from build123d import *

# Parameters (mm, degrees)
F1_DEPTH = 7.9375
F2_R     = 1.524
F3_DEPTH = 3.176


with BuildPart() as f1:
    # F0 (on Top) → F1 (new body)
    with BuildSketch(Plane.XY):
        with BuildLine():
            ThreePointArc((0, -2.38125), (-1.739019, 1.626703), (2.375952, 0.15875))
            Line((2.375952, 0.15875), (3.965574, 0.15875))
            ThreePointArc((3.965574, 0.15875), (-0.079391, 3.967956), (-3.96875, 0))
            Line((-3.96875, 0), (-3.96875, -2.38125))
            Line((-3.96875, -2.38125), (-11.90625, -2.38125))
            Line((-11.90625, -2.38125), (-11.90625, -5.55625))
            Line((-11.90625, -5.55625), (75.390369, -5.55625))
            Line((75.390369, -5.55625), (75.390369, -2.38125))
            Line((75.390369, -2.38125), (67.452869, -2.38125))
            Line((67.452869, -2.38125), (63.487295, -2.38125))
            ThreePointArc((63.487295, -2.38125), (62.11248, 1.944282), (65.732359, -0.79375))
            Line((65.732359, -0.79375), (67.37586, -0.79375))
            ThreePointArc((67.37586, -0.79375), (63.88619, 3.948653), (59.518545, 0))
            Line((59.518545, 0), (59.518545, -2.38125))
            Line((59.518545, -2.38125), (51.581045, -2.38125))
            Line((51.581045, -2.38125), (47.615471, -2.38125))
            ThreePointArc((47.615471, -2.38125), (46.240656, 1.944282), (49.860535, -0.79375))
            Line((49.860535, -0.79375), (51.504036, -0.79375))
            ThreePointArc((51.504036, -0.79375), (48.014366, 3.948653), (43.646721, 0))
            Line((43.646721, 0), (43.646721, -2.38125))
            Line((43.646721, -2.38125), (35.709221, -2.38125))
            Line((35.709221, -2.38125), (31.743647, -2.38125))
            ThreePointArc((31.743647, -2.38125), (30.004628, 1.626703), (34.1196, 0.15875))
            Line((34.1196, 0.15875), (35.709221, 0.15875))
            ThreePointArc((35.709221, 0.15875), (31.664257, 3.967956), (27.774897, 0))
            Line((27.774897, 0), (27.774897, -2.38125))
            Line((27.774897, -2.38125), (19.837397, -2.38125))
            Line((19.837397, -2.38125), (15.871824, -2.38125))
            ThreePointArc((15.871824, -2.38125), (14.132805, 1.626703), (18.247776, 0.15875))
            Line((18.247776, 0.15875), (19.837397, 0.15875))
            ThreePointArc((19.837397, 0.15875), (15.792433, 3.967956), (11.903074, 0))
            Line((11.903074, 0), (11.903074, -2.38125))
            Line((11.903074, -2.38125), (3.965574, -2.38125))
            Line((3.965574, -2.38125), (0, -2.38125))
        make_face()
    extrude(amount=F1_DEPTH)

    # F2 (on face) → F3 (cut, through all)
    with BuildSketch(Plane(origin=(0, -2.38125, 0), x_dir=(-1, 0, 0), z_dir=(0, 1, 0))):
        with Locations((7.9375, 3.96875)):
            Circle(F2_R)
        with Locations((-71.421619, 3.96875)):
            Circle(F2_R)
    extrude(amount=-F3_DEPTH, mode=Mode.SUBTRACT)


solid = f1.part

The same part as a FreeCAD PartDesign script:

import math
import FreeCAD as App
import Part
import Sketcher
Q = App.Units.Quantity

doc = App.newDocument("Part")
params = doc.addObject("Spreadsheet::Sheet", "Params")
for row, (alias, value) in enumerate([
    ("sketch1_radius", "0.09375 in"),
    ("sketch1_radius2", "0.15625 in"),
    ("sketch1_width", "0.3125 in"),
    ("sketch1_height", "0.125 in"),
    ("pad1_length", "0.3125 in"),
    ("sketch2_diameter", "0.12 in"),
], start=1):
    params.set(f"A{row}", alias)
    params.set(f"B{row}", "=" + value)
    params.setAlias(f"B{row}", alias)

body = doc.addObject("PartDesign::Body", "Body")

sketch1 = body.newObject("Sketcher::SketchObject", "Sketch")
sketch1.AttachmentSupport = (doc.getObject("XY_Plane"), [""])
sketch1.MapMode = "FlatFace"
sketch1.addGeometry([
    Part.ArcOfCircle(Part.Circle(App.Vector(0, 0, 0), App.Vector(0, 0, 1), 2.38125), math.radians(3.822561), math.radians(270.000003)),
    Part.LineSegment(App.Vector(2.375952, 0.15875, 0), App.Vector(3.965574, 0.15875, 0)),
    Part.ArcOfCircle(Part.Circle(App.Vector(0, 0, 0), App.Vector(0, 0, 1), 3.96875), math.radians(2.292442), math.radians(180)),
    Part.LineSegment(App.Vector(-3.96875, 0, 0), App.Vector(-3.96875, -2.38125, 0)),
    Part.LineSegment(App.Vector(-3.96875, -2.38125, 0), App.Vector(-11.90625, -2.38125, 0)),
    Part.LineSegment(App.Vector(-11.90625, -2.38125, 0), App.Vector(-11.90625, -5.55625, 0)),
    Part.LineSegment(App.Vector(-11.90625, -5.55625, 0), App.Vector(75.390369, -5.55625, 0)),
    Part.LineSegment(App.Vector(75.390369, -5.55625, 0), App.Vector(75.390369, -2.38125, 0)),
    Part.LineSegment(App.Vector(75.390369, -2.38125, 0), App.Vector(63.487295, -2.38125, 0)),
    Part.ArcOfCircle(Part.Circle(App.Vector(63.487295, 0, 0), App.Vector(0, 0, 1), 2.38125), math.radians(-19.471216), math.radians(269.999996)),
    Part.LineSegment(App.Vector(65.732359, -0.79375, 0), App.Vector(67.37586, -0.79375, 0)),
    Part.ArcOfCircle(Part.Circle(App.Vector(63.487295, 0, 0), App.Vector(0, 0, 1), 3.96875), math.radians(-11.536961), math.radians(180.000002)),
    Part.LineSegment(App.Vector(59.518545, 0, 0), App.Vector(59.518545, -2.38125, 0)),
    Part.LineSegment(App.Vector(59.518545, -2.38125, 0), App.Vector(47.615471, -2.38125, 0)),
    Part.ArcOfCircle(Part.Circle(App.Vector(47.615471, 0, 0), App.Vector(0, 0, 1), 2.38125), math.radians(-19.471216), math.radians(269.999996)),
    Part.LineSegment(App.Vector(49.860535, -0.79375, 0), App.Vector(51.504036, -0.79375, 0)),
    Part.ArcOfCircle(Part.Circle(App.Vector(47.615471, 0, 0), App.Vector(0, 0, 1), 3.96875), math.radians(-11.536961), math.radians(180.000002)),
    Part.LineSegment(App.Vector(43.646721, 0, 0), App.Vector(43.646721, -2.38125, 0)),
    Part.LineSegment(App.Vector(43.646721, -2.38125, 0), App.Vector(31.743647, -2.38125, 0)),
    Part.ArcOfCircle(Part.Circle(App.Vector(31.743648, 0, 0), App.Vector(0, 0, 1), 2.38125), math.radians(3.822553), math.radians(269.999987)),
    Part.LineSegment(App.Vector(34.1196, 0.15875, 0), App.Vector(35.709221, 0.15875, 0)),
    Part.ArcOfCircle(Part.Circle(App.Vector(31.743647, 0, 0), App.Vector(0, 0, 1), 3.96875), math.radians(2.292443), math.radians(180)),
    Part.LineSegment(App.Vector(27.774897, 0, 0), App.Vector(27.774897, -2.38125, 0)),
    Part.LineSegment(App.Vector(27.774897, -2.38125, 0), App.Vector(15.871824, -2.38125, 0)),
    Part.ArcOfCircle(Part.Circle(App.Vector(15.871824, 0, 0), App.Vector(0, 0, 1), 2.38125), math.radians(3.822561), math.radians(270.000003)),
    Part.LineSegment(App.Vector(18.247776, 0.15875, 0), App.Vector(19.837397, 0.15875, 0)),
    Part.ArcOfCircle(Part.Circle(App.Vector(15.871824, 0.000001, 0), App.Vector(0, 0, 1), 3.96875), math.radians(2.292436), math.radians(180.000007)),
    Part.LineSegment(App.Vector(11.903074, 0, 0), App.Vector(11.903074, -2.38125, 0)),
    Part.LineSegment(App.Vector(11.903074, -2.38125, 0), App.Vector(0, -2.38125, 0)),
], False)
sketch1.addConstraint([
    Sketcher.Constraint("Coincident", 0, 1, 1, 1),
    Sketcher.Constraint("Coincident", 1, 2, 2, 1),
    Sketcher.Constraint("Tangent", 2, 2, 3, 1),
    Sketcher.Constraint("Coincident", 3, 2, 4, 1),
    Sketcher.Constraint("Coincident", 4, 2, 5, 1),
    Sketcher.Constraint("Coincident", 5, 2, 6, 1),
    Sketcher.Constraint("Coincident", 6, 2, 7, 1),
    Sketcher.Constraint("Coincident", 7, 2, 8, 1),
    Sketcher.Constraint("Tangent", 8, 2, 9, 2),
    Sketcher.Constraint("Coincident", 9, 1, 10, 1),
    Sketcher.Constraint("Coincident", 10, 2, 11, 1),
    Sketcher.Constraint("Tangent", 11, 2, 12, 1),
    Sketcher.Constraint("Coincident", 12, 2, 13, 1),
    Sketcher.Constraint("Tangent", 13, 2, 14, 2),
    Sketcher.Constraint("Coincident", 14, 1, 15, 1),
    Sketcher.Constraint("Coincident", 15, 2, 16, 1),
    Sketcher.Constraint("Tangent", 16, 2, 17, 1),
    Sketcher.Constraint("Coincident", 17, 2, 18, 1),
    Sketcher.Constraint("Tangent", 18, 2, 19, 2),
    Sketcher.Constraint("Coincident", 19, 1, 20, 1),
    Sketcher.Constraint("Coincident", 20, 2, 21, 1),
    Sketcher.Constraint("Tangent", 21, 2, 22, 1),
    Sketcher.Constraint("Coincident", 22, 2, 23, 1),
    Sketcher.Constraint("Tangent", 23, 2, 24, 2),
    Sketcher.Constraint("Coincident", 24, 1, 25, 1),
    Sketcher.Constraint("Coincident", 25, 2, 26, 1),
    Sketcher.Constraint("Tangent", 26, 2, 27, 1),
    Sketcher.Constraint("Coincident", 27, 2, 28, 1),
    Sketcher.Constraint("Tangent", 28, 2, 0, 2),
    Sketcher.Constraint("Horizontal", 1),
    Sketcher.Constraint("Vertical", 3),
    Sketcher.Constraint("Horizontal", 4),
    Sketcher.Constraint("Vertical", 5),
    Sketcher.Constraint("Horizontal", 6),
    Sketcher.Constraint("Vertical", 7),
    Sketcher.Constraint("Horizontal", 8),
    Sketcher.Constraint("Horizontal", 10),
    Sketcher.Constraint("Vertical", 12),
    Sketcher.Constraint("Horizontal", 13),
    Sketcher.Constraint("Horizontal", 15),
    Sketcher.Constraint("Vertical", 17),
    Sketcher.Constraint("Horizontal", 18),
    Sketcher.Constraint("Horizontal", 20),
    Sketcher.Constraint("Vertical", 22),
    Sketcher.Constraint("Horizontal", 23),
    Sketcher.Constraint("Horizontal", 25),
    Sketcher.Constraint("Vertical", 27),
    Sketcher.Constraint("Horizontal", 28),
    Sketcher.Constraint("Coincident", 0, 3, -1, 1),
    Sketcher.Constraint("Coincident", 2, 3, -1, 1),
    Sketcher.Constraint("Coincident", 11, 3, 9, 3),
    Sketcher.Constraint("Coincident", 16, 3, 14, 3),
    Sketcher.Constraint("Coincident", 21, 3, 19, 3),
    Sketcher.Constraint("Coincident", 26, 3, 24, 3),
    Sketcher.Constraint("Equal", 0, 9),
    Sketcher.Constraint("Equal", 2, 11),
    Sketcher.Constraint("Equal", 9, 14),
    Sketcher.Constraint("Equal", 11, 16),
    Sketcher.Constraint("Equal", 14, 19),
    Sketcher.Constraint("Equal", 16, 21),
    Sketcher.Constraint("Equal", 19, 24),
    Sketcher.Constraint("Equal", 21, 26),
    Sketcher.Constraint("PointOnObject", 9, 3, -1),
    Sketcher.Constraint("PointOnObject", 14, 3, -1),
    Sketcher.Constraint("PointOnObject", 19, 3, -1),
    Sketcher.Constraint("PointOnObject", 24, 3, -1),
    Sketcher.Constraint("Horizontal", 4, 2, 7, 2),
    Sketcher.Constraint("Horizontal", 10, 2, 14, 1),
    Sketcher.Constraint("Horizontal", 1, 2, 19, 1),
    Sketcher.Constraint("Horizontal", 20, 2, 24, 1),
    Sketcher.Constraint("Equal", 8, 13),
    Sketcher.Constraint("Equal", 13, 18),
    Sketcher.Constraint("Equal", 18, 23),
    Sketcher.Constraint("Equal", 23, 28),
    Sketcher.Constraint("Radius", 0, Q("0.09375 in")),
    Sketcher.Constraint("Radius", 2, Q("0.15625 in")),
    Sketcher.Constraint("DistanceY", 3, 2, 0, 1, Q("0.1 in")),
    Sketcher.Constraint("DistanceX", 4, 2, 4, 1, Q("0.3125 in")),
    Sketcher.Constraint("DistanceY", 5, 2, 5, 1, Q("0.125 in")),
    Sketcher.Constraint("DistanceY", 9, 1, -1, 1, Q("0.03125 in")),
    Sketcher.Constraint("DistanceX", -1, 1, 25, 2, Q("0.7809999 in")),
])
sketch1.setExpression("Constraints[74]", "Params.sketch1_radius")
sketch1.setExpression("Constraints[75]", "Params.sketch1_radius2")
sketch1.setExpression("Constraints[77]", "Params.sketch1_width")
sketch1.setExpression("Constraints[78]", "Params.sketch1_height")
pad1 = body.newObject("PartDesign::Pad", "Pad")
pad1.Profile = sketch1
pad1.setExpression("Length", "Params.pad1_length")

sketch2 = body.newObject("Sketcher::SketchObject", "Sketch001")
sketch2.AttachmentSupport = (doc.getObject("XZ_Plane"), [""])
sketch2.MapMode = "FlatFace"
sketch2.AttachmentOffset = App.Placement(App.Vector(0, 0, 0.09375 * 25.4), App.Rotation())
sketch2.addGeometry([
    Part.Circle(App.Vector(-7.9375, 3.96875, 0), App.Vector(0, 0, 1), 1.524),
    Part.Circle(App.Vector(71.421619, 3.96875, 0), App.Vector(0, 0, 1), 1.524),
], False)
sketch2.addConstraint([
    Sketcher.Constraint("Equal", 0, 1),
    Sketcher.Constraint("Horizontal", 0, 3, 1, 3),
    Sketcher.Constraint("Diameter", 0, Q("0.12 in")),
    Sketcher.Constraint("DistanceX", 0, 3, -1, 1, Q("0.3125 in")),
    Sketcher.Constraint("DistanceY", -1, 1, 0, 3, Q("0.15625 in")),
    Sketcher.Constraint("DistanceX", -1, 1, 1, 3, Q("71.421619 mm")),
])
sketch2.setExpression("Constraints[2]", "Params.sketch2_diameter")
pocket1 = body.newObject("PartDesign::Pocket", "Pocket")
pocket1.Profile = sketch2
pocket1.Type = "ThroughAll"
pocket1.Reversed = True

doc.recompute()
